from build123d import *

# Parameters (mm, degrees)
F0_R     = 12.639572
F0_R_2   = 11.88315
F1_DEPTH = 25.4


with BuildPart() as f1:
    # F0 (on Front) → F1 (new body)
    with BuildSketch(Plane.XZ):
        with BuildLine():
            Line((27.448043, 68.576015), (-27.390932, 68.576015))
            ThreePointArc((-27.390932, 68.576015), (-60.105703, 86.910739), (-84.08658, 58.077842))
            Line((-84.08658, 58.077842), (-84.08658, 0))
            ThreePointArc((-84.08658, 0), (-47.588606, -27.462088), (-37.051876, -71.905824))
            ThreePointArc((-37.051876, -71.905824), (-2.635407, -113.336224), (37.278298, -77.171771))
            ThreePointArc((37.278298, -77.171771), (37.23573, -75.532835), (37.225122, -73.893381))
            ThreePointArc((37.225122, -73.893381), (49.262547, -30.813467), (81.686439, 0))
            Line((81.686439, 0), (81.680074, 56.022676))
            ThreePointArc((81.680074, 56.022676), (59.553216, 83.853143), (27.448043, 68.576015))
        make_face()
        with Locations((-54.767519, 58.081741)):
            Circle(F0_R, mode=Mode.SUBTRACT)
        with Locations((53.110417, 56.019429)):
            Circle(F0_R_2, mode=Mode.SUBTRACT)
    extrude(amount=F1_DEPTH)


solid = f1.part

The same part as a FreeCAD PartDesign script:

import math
import FreeCAD as App
import Part
import Sketcher

V = App.Vector
Q = App.Units.Quantity

doc = App.newDocument("Part")
body = doc.addObject("PartDesign::Body", "Body")

sketch1 = body.newObject("Sketcher::SketchObject", "Sketch")
sketch1.AttachmentSupport = (doc.getObject("XZ_Plane"), [""])
sketch1.MapMode = "FlatFace"
sketch1.addGeometry(Part.LineSegment(V(27.448043, 68.576015, 0), V(-27.390932, 68.576015, 0)), False)
sketch1.addGeometry(Part.ArcOfCircle(Part.Circle(V(-54.767519, 58.081741, 0), V(0, 0, 1), 29.319061), math.radians(20.973339), math.radians(180.00762)), False)
sketch1.addGeometry(Part.LineSegment(V(-84.08658, 58.077842, 0), V(-84.08658, 0, 0)), False)
sketch1.addGeometry(Part.ArcOfCircle(Part.Circle(V(-103.868977, -64.275943, 0), V(0, 0, 1), 67.25132), math.radians(-6.514419), math.radians(72.89305)), False)
sketch1.addGeometry(Part.ArcOfCircle(Part.Circle(V(0, -76.136798, 0), V(0, 0, 1), 37.292662), math.radians(173.485581), math.radians(358.409682)), False)
sketch1.addGeometry(Part.ArcOfCircle(Part.Circle(V(121.316335, -74.169035, 0), V(0, 0, 1), 84.091665), math.radians(179.812183), math.radians(182.046347)), False)
sketch1.addGeometry(Part.ArcOfCircle(Part.Circle(V(121.318187, -74.169024, 0), V(0, 0, 1), 84.093516), math.radians(118.117536), math.radians(179.812195)), False)
sketch1.addGeometry(Part.LineSegment(V(81.686439, 0, 0), V(81.680074, 56.022676, 0)), False)
sketch1.addGeometry(Part.ArcOfCircle(Part.Circle(V(53.110417, 56.019429, 0), V(0, 0, 1), 28.569657), math.radians(0.006512), math.radians(153.927521)), False)
sketch1.addGeometry(Part.Circle(V(53.110417, 56.019429, 0), V(0, 0, 1), 11.88315), False)
sketch1.addGeometry(Part.Circle(V(-54.767519, 58.081741, 0), V(0, 0, 1), 12.639572), False)
sketch1.addConstraint(Sketcher.Constraint("Coincident", 0, 2, 1, 1))
sketch1.addConstraint(Sketcher.Constraint("Coincident", 1, 2, 2, 1))
sketch1.addConstraint(Sketcher.Constraint("Coincident", 2, 2, 3, 2))
sketch1.addConstraint(Sketcher.Constraint("Coincident", 3, 1, 4, 1))
sketch1.addConstraint(Sketcher.Constraint("Coincident", 4, 2, 5, 2))
sketch1.addConstraint(Sketcher.Constraint("Coincident", 5, 1, 6, 2))
sketch1.addConstraint(Sketcher.Constraint("Coincident", 6, 1, 7, 1))
sketch1.addConstraint(Sketcher.Constraint("Coincident", 7, 2, 8, 1))
sketch1.addConstraint(Sketcher.Constraint("Coincident", 8, 2, 0, 1))
sketch1.addConstraint(Sketcher.Constraint("Horizontal", 0))
sketch1.addConstraint(Sketcher.Constraint("Vertical", 2))
sketch1.addConstraint(Sketcher.Constraint("Coincident", 9, 3, 8, 3))
sketch1.addConstraint(Sketcher.Constraint("Coincident", 10, 3, 1, 3))
sketch1.addConstraint(Sketcher.Constraint("PointOnObject", 4, 3, -2))
sketch1.addConstraint(Sketcher.Constraint("PointOnObject", 2, 2, -1))
sketch1.addConstraint(Sketcher.Constraint("PointOnObject", 6, 1, -1))
sketch1.addConstraint(Sketcher.Constraint("Diameter", 9, 23.7663))
sketch1.addConstraint(Sketcher.Constraint("Radius", 1, 29.319061))
sketch1.addConstraint(Sketcher.Constraint("Radius", 3, 67.25132))
sketch1.addConstraint(Sketcher.Constraint("Diameter", 10, 25.279144))
sketch1.addConstraint(Sketcher.Constraint("Radius", 4, 37.292662))
sketch1.addConstraint(Sketcher.Constraint("Radius", 5, 84.091665))
sketch1.addConstraint(Sketcher.Constraint("Radius", 6, 84.093516))
sketch1.addConstraint(Sketcher.Constraint("Radius", 8, 28.569657))
sketch1.addConstraint(Sketcher.Constraint("DistanceY", 2, 2, 2, 1, 58.077842))
sketch1.addConstraint(Sketcher.Constraint("DistanceY", 4, 3, -1, 1, 76.136798))
sketch1.addConstraint(Sketcher.Constraint("DistanceX", -1, 1, 4, 2, 37.278298))
sketch1.addConstraint(Sketcher.Constraint("DistanceY", 1, 2, 1, 3, 0.003899))
sketch1.addConstraint(Sketcher.Constraint("DistanceX", 3, 3, 3, 1, 66.817101))
sketch1.addConstraint(Sketcher.Constraint("DistanceY", 4, 2, 8, 3, 133.1912))
sketch1.addConstraint(Sketcher.Constraint("DistanceX", 3, 1, 5, 1, 74.276998))
sketch1.addConstraint(Sketcher.Constraint("DistanceX", 0, 2, 0, 1, 54.838975))
sketch1.addConstraint(Sketcher.Constraint("DistanceX", 1, 3, -1, 1, 54.767519))
sketch1.addConstraint(Sketcher.Constraint("DistanceX", 0, 2, -1, 1, 27.390932))
sketch1.addConstraint(Sketcher.Constraint("DistanceY", 5, 1, -1, 1, 73.893381))
sketch1.addConstraint(Sketcher.Constraint("DistanceX", -1, 1, 6, 1, 81.686439))
sketch1.addConstraint(Sketcher.Constraint("DistanceY", 7, 2, 0, 2, 12.553339))
pad1 = body.newObject("PartDesign::Pad", "Pad")
pad1.Profile = sketch1
pad1.Length = Q("1 in")

doc.recompute()
